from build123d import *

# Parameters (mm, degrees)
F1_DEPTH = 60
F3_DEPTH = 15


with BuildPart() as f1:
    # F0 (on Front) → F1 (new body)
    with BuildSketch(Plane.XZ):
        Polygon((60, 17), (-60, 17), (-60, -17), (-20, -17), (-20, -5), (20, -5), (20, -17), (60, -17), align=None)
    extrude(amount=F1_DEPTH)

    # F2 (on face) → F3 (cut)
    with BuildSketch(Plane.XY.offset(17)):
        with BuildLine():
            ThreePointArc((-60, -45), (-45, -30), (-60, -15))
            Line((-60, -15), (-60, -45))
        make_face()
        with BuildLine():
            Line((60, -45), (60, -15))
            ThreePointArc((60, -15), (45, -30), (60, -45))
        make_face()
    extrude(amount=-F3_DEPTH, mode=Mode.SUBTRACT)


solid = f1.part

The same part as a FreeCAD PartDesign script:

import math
import FreeCAD as App
import Part
import Sketcher
from FreeCAD import Vector

doc = App.newDocument("Part")
body = doc.addObject("PartDesign::Body", "Body")

# Sketch on XZ plane
sketch1 = body.newObject("Sketcher::SketchObject", "Sketch")
sketch1.AttachmentSupport = (doc.getObject("XZ_Plane"), [""])
sketch1.MapMode = "FlatFace"
sketch1.addGeometry(Part.LineSegment(Vector(60, 17, 0), Vector(-60, 17, 0)), False)
sketch1.addGeometry(Part.LineSegment(Vector(-60, 17, 0), Vector(-60, -17, 0)), False)
sketch1.addGeometry(Part.LineSegment(Vector(-60, -17, 0), Vector(-20, -17, 0)), False)
sketch1.addGeometry(Part.LineSegment(Vector(-20, -17, 0), Vector(-20, -5, 0)), False)
sketch1.addGeometry(Part.LineSegment(Vector(-20, -5, 0), Vector(20, -5, 0)), False)
sketch1.addGeometry(Part.LineSegment(Vector(20, -5, 0), Vector(20, -17, 0)), False)
sketch1.addGeometry(Part.LineSegment(Vector(20, -17, 0), Vector(60, -17, 0)), False)
sketch1.addGeometry(Part.LineSegment(Vector(60, -17, 0), Vector(60, 17, 0)), False)
sketch1.addConstraint(Sketcher.Constraint("Coincident", 0, 2, 1, 1))
sketch1.addConstraint(Sketcher.Constraint("Coincident", 1, 2, 2, 1))
sketch1.addConstraint(Sketcher.Constraint("Coincident", 2, 2, 3, 1))
sketch1.addConstraint(Sketcher.Constraint("Coincident", 3, 2, 4, 1))
sketch1.addConstraint(Sketcher.Constraint("Coincident", 4, 2, 5, 1))
sketch1.addConstraint(Sketcher.Constraint("Coincident", 5, 2, 6, 1))
sketch1.addConstraint(Sketcher.Constraint("Coincident", 6, 2, 7, 1))
sketch1.addConstraint(Sketcher.Constraint("Coincident", 7, 2, 0, 1))
sketch1.addConstraint(Sketcher.Constraint("Horizontal", 0))
sketch1.addConstraint(Sketcher.Constraint("Vertical", 1))
sketch1.addConstraint(Sketcher.Constraint("Horizontal", 2))
sketch1.addConstraint(Sketcher.Constraint("Vertical", 3))
sketch1.addConstraint(Sketcher.Constraint("Horizontal", 4))
sketch1.addConstraint(Sketcher.Constraint("Vertical", 5))
sketch1.addConstraint(Sketcher.Constraint("Horizontal", 6))
sketch1.addConstraint(Sketcher.Constraint("Vertical", 7))
sketch1.addConstraint(Sketcher.Constraint("Symmetric", 0, 2, 6, 2, -1, 1))
sketch1.addConstraint(Sketcher.Constraint("Symmetric", 2, 2, 5, 2, -2))
sketch1.addConstraint(Sketcher.Constraint("Equal", 2, 4))
sketch1.addConstraint(Sketcher.Constraint("DistanceX", 0, 2, 0, 1, 120.0))
sketch1.addConstraint(Sketcher.Constraint("DistanceY", 1, 2, 1, 1, 34.0))
sketch1.addConstraint(Sketcher.Constraint("DistanceY", 3, 1, 3, 2, 12.0))
pad1 = body.newObject("PartDesign::Pad", "Pad")
pad1.Profile = sketch1
pad1.Length = 60

# Sketch on XY plane
sketch2 = body.newObject("Sketcher::SketchObject", "Sketch001")
sketch2.AttachmentSupport = (doc.getObject("XY_Plane"), [""])
sketch2.MapMode = "FlatFace"
sketch2.AttachmentOffset = App.Placement(Vector(0, 0, 17), App.Rotation())
sketch2.addGeometry(Part.ArcOfCircle(Part.Circle(Vector(-60, -30, 0), Vector(0, 0, 1), 15), math.radians(-90), math.radians(90)), False)
sketch2.addGeometry(Part.LineSegment(Vector(-60, -15, 0), Vector(-60, -45, 0)), False)
sketch2.addGeometry(Part.LineSegment(Vector(60, -45, 0), Vector(60, -15, 0)), False)
sketch2.addGeometry(Part.ArcOfCircle(Part.Circle(Vector(60, -30, 0), Vector(0, 0, 1), 15), math.radians(90), math.radians(270)), False)
sketch2.addConstraint(Sketcher.Constraint("Coincident", 0, 1, 1, 2))
sketch2.addConstraint(Sketcher.Constraint("Coincident", 1, 1, 0, 2))
sketch2.addConstraint(Sketcher.Constraint("Coincident", 2, 1, 3, 2))
sketch2.addConstraint(Sketcher.Constraint("Coincident", 3, 1, 2, 2))
sketch2.addConstraint(Sketcher.Constraint("Vertical", 1))
sketch2.addConstraint(Sketcher.Constraint("Vertical", 2))
sketch2.addConstraint(Sketcher.Constraint("Equal", 0, 3))
sketch2.addConstraint(Sketcher.Constraint("Symmetric", 0, 3, 3, 3, -2))
sketch2.addConstraint(Sketcher.Constraint("Vertical", 3, 3, 2, 1))
sketch2.addConstraint(Sketcher.Constraint("Radius", 0, 15.0))
sketch2.addConstraint(Sketcher.Constraint("DistanceX", 0, 3, -1, 1, 60.0))
sketch2.addConstraint(Sketcher.Constraint("DistanceY", 0, 3, -1, 1, 30.0))
sketch2.addConstraint(Sketcher.Constraint("DistanceX", 0, 1, -1, 1, 60.0))
pocket1 = body.newObject("PartDesign::Pocket", "Pocket")
pocket1.Profile = sketch2
pocket1.Length = 15

doc.recompute()
